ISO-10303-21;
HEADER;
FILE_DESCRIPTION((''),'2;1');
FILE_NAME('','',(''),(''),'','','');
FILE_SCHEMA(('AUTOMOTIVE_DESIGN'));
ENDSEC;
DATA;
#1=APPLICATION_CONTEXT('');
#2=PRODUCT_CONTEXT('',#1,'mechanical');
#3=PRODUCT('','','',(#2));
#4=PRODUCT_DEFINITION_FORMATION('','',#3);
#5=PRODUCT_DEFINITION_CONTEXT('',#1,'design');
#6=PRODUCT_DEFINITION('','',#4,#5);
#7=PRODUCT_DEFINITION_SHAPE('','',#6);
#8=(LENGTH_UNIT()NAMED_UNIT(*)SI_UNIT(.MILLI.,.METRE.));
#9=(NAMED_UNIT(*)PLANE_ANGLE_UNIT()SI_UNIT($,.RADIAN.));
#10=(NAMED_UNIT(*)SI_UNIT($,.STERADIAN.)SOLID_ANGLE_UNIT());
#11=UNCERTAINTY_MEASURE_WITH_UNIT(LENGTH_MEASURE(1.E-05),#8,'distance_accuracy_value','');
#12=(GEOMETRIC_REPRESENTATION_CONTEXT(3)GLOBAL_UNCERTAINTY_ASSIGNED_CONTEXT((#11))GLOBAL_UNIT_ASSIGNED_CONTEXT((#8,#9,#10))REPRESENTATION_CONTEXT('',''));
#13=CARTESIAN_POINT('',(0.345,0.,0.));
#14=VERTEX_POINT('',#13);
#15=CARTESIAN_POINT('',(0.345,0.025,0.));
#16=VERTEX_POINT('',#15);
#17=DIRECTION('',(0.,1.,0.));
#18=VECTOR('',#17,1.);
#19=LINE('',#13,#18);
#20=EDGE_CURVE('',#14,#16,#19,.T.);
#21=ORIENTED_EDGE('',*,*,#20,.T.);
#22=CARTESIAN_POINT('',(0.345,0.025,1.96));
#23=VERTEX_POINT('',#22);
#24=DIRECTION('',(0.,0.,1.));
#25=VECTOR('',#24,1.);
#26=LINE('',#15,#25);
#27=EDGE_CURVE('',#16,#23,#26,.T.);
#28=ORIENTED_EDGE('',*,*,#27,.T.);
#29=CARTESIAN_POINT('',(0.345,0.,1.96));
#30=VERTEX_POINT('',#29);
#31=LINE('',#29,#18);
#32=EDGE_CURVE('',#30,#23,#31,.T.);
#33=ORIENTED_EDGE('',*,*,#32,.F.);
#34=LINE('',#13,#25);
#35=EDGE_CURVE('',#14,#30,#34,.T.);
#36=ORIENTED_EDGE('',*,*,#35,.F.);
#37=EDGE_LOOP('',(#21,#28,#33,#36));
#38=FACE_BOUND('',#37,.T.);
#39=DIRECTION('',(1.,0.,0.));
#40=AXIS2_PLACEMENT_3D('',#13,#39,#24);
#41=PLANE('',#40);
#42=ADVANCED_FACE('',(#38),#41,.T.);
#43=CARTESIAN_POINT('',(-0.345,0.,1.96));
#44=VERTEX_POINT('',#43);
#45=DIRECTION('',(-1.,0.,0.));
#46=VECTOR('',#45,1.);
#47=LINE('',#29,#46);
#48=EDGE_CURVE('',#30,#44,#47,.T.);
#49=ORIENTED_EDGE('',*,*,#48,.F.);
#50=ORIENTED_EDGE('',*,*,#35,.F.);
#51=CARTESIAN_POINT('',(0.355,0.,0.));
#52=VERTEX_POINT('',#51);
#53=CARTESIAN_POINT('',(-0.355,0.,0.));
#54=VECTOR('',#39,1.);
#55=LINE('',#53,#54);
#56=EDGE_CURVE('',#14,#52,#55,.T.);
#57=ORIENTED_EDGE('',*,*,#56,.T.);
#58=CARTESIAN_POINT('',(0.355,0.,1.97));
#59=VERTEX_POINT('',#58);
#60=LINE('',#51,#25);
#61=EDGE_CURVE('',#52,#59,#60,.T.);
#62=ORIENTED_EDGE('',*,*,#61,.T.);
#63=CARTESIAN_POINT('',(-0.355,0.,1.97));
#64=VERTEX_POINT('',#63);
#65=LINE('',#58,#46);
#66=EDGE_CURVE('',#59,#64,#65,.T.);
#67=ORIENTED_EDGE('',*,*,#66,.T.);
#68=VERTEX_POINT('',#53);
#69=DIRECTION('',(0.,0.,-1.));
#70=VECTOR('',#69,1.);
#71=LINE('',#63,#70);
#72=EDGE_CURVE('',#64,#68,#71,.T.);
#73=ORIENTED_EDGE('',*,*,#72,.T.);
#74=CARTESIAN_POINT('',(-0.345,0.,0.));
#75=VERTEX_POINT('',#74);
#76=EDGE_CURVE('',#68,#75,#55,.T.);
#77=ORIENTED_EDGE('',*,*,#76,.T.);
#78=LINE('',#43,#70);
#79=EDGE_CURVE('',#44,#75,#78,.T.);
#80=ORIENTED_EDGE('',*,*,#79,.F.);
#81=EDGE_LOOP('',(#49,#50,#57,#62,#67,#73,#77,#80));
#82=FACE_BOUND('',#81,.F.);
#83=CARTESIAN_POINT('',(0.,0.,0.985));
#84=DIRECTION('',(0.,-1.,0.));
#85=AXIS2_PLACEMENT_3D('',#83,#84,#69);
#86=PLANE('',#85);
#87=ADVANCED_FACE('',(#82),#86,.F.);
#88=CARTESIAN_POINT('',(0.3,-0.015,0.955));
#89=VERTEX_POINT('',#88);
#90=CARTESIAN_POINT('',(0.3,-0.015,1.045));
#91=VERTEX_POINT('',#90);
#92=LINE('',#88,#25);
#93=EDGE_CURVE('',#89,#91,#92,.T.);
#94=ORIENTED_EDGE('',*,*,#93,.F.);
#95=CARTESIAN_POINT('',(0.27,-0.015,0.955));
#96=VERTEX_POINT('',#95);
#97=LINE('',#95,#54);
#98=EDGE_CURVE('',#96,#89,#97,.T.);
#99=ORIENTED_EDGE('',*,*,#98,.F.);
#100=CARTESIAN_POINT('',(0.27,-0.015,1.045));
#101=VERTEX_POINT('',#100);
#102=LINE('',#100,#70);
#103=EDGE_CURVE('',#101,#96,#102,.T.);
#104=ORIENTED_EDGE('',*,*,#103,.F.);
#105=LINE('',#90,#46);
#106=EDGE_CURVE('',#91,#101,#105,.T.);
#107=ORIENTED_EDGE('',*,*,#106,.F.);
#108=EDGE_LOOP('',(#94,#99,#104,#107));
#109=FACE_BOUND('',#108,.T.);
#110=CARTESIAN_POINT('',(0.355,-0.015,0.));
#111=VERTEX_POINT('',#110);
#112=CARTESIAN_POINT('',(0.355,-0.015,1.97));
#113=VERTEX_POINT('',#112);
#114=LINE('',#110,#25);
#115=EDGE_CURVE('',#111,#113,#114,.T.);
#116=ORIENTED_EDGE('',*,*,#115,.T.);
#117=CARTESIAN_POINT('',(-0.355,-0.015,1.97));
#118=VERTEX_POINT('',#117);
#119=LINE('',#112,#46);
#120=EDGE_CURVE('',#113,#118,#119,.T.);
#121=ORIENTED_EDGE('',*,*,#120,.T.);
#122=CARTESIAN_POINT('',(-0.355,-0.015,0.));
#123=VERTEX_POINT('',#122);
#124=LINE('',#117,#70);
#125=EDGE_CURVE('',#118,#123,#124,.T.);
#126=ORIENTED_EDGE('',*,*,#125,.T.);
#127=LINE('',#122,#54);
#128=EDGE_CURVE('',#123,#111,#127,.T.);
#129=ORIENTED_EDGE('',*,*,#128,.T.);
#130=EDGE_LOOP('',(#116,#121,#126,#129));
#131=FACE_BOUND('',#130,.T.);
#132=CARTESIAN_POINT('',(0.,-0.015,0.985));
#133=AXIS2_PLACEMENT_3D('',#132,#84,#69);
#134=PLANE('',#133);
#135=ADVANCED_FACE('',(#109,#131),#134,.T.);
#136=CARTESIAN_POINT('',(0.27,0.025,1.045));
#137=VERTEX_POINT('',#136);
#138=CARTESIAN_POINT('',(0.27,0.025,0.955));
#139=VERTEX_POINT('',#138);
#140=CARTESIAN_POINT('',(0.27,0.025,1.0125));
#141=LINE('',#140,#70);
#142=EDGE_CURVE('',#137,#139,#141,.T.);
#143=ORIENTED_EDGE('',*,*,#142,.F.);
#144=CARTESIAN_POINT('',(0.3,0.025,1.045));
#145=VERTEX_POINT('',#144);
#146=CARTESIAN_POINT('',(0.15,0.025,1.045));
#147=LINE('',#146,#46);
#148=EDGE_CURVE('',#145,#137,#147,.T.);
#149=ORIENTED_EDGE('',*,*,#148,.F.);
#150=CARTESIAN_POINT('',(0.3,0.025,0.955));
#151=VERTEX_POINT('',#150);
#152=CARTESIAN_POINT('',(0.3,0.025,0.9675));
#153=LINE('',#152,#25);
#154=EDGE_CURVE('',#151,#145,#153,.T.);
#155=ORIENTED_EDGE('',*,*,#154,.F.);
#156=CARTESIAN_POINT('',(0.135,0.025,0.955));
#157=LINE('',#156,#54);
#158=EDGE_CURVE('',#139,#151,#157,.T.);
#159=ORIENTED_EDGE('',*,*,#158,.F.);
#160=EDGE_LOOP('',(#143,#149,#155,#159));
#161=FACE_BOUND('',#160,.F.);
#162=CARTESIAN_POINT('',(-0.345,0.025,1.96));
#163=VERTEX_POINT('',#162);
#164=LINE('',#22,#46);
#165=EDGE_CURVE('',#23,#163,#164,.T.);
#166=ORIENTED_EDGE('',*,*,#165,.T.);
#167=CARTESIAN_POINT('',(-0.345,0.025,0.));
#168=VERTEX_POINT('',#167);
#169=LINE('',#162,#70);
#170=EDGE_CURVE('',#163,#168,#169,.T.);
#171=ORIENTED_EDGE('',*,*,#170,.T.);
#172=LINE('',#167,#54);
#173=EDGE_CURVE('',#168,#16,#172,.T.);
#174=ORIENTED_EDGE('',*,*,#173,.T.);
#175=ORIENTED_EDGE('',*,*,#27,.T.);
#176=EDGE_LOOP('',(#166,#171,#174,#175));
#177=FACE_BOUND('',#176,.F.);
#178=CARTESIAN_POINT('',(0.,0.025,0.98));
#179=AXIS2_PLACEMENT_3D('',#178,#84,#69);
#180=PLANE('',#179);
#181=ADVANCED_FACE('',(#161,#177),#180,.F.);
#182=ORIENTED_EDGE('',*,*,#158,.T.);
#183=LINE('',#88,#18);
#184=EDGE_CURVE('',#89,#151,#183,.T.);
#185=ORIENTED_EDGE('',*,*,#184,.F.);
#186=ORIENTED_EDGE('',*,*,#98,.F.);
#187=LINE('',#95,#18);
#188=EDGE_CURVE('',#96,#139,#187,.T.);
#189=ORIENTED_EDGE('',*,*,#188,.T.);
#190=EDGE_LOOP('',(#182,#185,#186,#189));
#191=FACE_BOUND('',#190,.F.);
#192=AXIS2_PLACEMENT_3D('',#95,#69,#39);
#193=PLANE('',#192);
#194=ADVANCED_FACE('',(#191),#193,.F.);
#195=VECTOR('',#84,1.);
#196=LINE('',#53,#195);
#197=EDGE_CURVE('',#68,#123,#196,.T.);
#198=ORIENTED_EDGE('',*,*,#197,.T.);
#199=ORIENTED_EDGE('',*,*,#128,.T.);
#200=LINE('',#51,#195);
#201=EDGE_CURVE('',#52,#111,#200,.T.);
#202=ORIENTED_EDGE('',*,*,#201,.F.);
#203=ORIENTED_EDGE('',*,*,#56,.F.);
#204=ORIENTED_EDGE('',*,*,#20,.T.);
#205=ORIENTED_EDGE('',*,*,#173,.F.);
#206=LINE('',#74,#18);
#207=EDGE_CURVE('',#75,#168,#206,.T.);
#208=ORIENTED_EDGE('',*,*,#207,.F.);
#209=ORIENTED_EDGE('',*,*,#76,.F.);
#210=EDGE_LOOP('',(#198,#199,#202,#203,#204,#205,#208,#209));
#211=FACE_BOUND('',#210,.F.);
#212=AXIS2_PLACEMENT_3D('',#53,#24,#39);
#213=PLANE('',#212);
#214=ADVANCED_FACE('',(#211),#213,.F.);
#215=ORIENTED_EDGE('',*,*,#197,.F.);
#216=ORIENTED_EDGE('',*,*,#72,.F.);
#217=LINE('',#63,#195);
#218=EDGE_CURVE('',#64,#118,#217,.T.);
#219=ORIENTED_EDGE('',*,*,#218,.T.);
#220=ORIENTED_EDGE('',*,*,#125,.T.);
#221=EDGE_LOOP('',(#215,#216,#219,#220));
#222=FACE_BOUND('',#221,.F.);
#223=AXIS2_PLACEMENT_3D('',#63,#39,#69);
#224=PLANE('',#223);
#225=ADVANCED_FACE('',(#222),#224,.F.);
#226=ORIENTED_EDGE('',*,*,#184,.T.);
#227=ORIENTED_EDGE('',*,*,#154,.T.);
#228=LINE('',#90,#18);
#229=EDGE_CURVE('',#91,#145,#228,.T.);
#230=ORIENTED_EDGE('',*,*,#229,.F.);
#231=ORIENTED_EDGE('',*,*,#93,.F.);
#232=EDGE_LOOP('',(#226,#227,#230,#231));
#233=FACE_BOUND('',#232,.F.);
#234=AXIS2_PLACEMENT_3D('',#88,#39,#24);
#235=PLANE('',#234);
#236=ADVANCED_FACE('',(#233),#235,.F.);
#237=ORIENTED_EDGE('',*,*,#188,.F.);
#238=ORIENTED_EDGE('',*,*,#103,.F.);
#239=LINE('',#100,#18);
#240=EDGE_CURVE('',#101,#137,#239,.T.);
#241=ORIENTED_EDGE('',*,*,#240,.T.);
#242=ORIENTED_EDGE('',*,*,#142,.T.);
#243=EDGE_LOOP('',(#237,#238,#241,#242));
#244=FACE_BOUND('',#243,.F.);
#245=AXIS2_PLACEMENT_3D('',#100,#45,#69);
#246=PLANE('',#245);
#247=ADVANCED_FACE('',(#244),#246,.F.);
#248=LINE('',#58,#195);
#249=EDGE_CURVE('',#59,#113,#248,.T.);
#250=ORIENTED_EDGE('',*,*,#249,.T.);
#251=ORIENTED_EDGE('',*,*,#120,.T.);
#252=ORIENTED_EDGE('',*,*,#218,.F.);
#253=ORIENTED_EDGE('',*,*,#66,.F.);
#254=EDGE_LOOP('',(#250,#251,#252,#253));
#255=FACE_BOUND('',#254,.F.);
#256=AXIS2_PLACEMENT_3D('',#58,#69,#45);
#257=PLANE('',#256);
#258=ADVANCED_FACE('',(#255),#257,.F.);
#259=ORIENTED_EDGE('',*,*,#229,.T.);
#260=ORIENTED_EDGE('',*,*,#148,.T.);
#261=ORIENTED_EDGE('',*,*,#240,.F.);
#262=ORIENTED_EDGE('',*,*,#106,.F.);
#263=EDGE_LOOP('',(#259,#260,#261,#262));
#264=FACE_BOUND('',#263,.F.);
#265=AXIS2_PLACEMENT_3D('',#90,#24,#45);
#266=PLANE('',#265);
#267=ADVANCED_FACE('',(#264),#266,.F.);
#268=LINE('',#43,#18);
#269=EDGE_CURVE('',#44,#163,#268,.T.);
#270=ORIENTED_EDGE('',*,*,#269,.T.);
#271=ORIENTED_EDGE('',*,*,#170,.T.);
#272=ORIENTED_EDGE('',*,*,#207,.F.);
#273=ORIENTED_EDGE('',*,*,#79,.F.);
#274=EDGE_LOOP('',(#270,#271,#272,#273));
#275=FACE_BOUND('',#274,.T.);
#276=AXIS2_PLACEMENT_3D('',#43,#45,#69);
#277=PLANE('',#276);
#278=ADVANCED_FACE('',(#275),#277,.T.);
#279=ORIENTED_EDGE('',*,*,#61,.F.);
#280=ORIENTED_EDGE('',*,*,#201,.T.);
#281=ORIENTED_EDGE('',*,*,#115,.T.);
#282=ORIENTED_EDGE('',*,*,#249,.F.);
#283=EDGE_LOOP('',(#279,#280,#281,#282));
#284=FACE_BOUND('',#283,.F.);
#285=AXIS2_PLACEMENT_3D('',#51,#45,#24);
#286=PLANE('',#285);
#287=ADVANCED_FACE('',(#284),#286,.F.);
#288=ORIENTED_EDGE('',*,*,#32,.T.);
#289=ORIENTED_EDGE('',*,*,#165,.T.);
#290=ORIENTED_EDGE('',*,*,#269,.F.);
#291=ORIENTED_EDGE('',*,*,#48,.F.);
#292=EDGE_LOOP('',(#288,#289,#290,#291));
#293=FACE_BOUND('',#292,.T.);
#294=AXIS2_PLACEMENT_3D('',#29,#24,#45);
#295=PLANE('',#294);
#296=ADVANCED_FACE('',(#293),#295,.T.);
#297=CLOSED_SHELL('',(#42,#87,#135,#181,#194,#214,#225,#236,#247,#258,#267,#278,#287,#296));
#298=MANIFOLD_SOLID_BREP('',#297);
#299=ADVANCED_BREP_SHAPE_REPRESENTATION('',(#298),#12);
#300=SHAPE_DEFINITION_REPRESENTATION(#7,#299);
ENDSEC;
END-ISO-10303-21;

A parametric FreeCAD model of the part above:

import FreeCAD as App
import Part
import Sketcher

doc = App.newDocument("Part")
body = doc.addObject("PartDesign::Body", "Body")

# Sketch on XZ plane
sketch1 = doc.addObject("Sketcher::SketchObject", "Sketch")
body.addObject(sketch1)
sketch1.AttachmentSupport = (doc.XZ_Plane, [""])
sketch1.MapMode = "FlatFace"
sketch1.addGeometry([
    Part.LineSegment(App.Vector(-0.3, 2, 0), App.Vector(-0.3, 0, 0)),
    Part.LineSegment(App.Vector(-0.3, 0, 0), App.Vector(0.3, 0, 0)),
    Part.LineSegment(App.Vector(0.3, 0, 0), App.Vector(0.3, 2, 0)),
    Part.LineSegment(App.Vector(0.3, 2, 0), App.Vector(-0.3, 2, 0)),
], False)
sketch1.addConstraint([
    Sketcher.Constraint("Coincident", 0, 2, 1, 1),
    Sketcher.Constraint("Coincident", 1, 2, 2, 1),
    Sketcher.Constraint("Coincident", 2, 2, 3, 1),
    Sketcher.Constraint("Coincident", 3, 2, 0, 1),
    Sketcher.Constraint("Vertical", 0),
    Sketcher.Constraint("Horizontal", 1),
    Sketcher.Constraint("Vertical", 2),
    Sketcher.Constraint("Horizontal", 3),
    Sketcher.Constraint("Symmetric", 0, 2, 1, 2, -1, 1),
    Sketcher.Constraint("DistanceX", 0, 2, -1, 1, 0.345),
    Sketcher.Constraint("DistanceY", 0, 2, 0, 1, 1.96),
])
pad1 = doc.addObject("PartDesign::Pad", "Pad")
body.addObject(pad1)
pad1.Profile = sketch1
pad1.Length = 0.025
pad1.Reversed = True

# Sketch on XZ plane
sketch2 = doc.addObject("Sketcher::SketchObject", "Sketch001")
body.addObject(sketch2)
sketch2.AttachmentSupport = (doc.XZ_Plane, [""])
sketch2.MapMode = "FlatFace"
sketch2.addGeometry([
    Part.LineSegment(App.Vector(-0.4, 2, 0), App.Vector(-0.4, 0, 0)),
    Part.LineSegment(App.Vector(-0.4, 0, 0), App.Vector(0.4, 0, 0)),
    Part.LineSegment(App.Vector(0.4, 0, 0), App.Vector(0.4, 2, 0)),
    Part.LineSegment(App.Vector(0.4, 2, 0), App.Vector(-0.4, 2, 0)),
], False)
sketch2.addConstraint([
    Sketcher.Constraint("Coincident", 0, 2, 1, 1),
    Sketcher.Constraint("Coincident", 1, 2, 2, 1),
    Sketcher.Constraint("Coincident", 2, 2, 3, 1),
    Sketcher.Constraint("Coincident", 3, 2, 0, 1),
    Sketcher.Constraint("Vertical", 0),
    Sketcher.Constraint("Horizontal", 1),
    Sketcher.Constraint("Vertical", 2),
    Sketcher.Constraint("Horizontal", 3),
    Sketcher.Constraint("Symmetric", 0, 2, 1, 2, -1, 1),
    Sketcher.Constraint("DistanceX", 1, 1, 1, 2, 0.71),
    Sketcher.Constraint("DistanceY", 0, 2, 0, 1, 1.97),
])
pad2 = doc.addObject("PartDesign::Pad", "Pad001")
body.addObject(pad2)
pad2.Profile = sketch2
pad2.Length = 0.015

# Sketch on XZ plane
sketch3 = doc.addObject("Sketcher::SketchObject", "Sketch002")
body.addObject(sketch3)
sketch3.AttachmentSupport = (doc.XZ_Plane, [""])
sketch3.MapMode = "FlatFace"
sketch3.AttachmentOffset = App.Placement(App.Vector(0, 0, 0.015), App.Rotation())
sketch3.addGeometry([
    Part.LineSegment(App.Vector(0.27, 1.045, 0), App.Vector(0.27, 0.955, 0)),
    Part.LineSegment(App.Vector(0.27, 0.955, 0), App.Vector(0.3, 0.955, 0)),
    Part.LineSegment(App.Vector(0.3, 0.955, 0), App.Vector(0.3, 1.045, 0)),
    Part.LineSegment(App.Vector(0.3, 1.045, 0), App.Vector(0.27, 1.045, 0)),
], False)
sketch3.addConstraint([
    Sketcher.Constraint("Coincident", 0, 2, 1, 1),
    Sketcher.Constraint("Coincident", 1, 2, 2, 1),
    Sketcher.Constraint("Coincident", 2, 2, 3, 1),
    Sketcher.Constraint("Coincident", 3, 2, 0, 1),
    Sketcher.Constraint("Vertical", 0),
    Sketcher.Constraint("Horizontal", 1),
    Sketcher.Constraint("Vertical", 2),
    Sketcher.Constraint("Horizontal", 3),
    Sketcher.Constraint("DistanceX", -1, 1, 1, 2, 0.3),
    Sketcher.Constraint("DistanceX", -1, 1, 0, 2, 0.27),
    Sketcher.Constraint("DistanceY", 0, 2, 0, 1, 0.09),
    Sketcher.Constraint("DistanceY", -1, 1, 0, 2, 0.955),
])
pocket1 = doc.addObject("PartDesign::Pocket", "Pocket")
body.addObject(pocket1)
pocket1.Profile = sketch3
pocket1.Type = "ThroughAll"

doc.recompute()
